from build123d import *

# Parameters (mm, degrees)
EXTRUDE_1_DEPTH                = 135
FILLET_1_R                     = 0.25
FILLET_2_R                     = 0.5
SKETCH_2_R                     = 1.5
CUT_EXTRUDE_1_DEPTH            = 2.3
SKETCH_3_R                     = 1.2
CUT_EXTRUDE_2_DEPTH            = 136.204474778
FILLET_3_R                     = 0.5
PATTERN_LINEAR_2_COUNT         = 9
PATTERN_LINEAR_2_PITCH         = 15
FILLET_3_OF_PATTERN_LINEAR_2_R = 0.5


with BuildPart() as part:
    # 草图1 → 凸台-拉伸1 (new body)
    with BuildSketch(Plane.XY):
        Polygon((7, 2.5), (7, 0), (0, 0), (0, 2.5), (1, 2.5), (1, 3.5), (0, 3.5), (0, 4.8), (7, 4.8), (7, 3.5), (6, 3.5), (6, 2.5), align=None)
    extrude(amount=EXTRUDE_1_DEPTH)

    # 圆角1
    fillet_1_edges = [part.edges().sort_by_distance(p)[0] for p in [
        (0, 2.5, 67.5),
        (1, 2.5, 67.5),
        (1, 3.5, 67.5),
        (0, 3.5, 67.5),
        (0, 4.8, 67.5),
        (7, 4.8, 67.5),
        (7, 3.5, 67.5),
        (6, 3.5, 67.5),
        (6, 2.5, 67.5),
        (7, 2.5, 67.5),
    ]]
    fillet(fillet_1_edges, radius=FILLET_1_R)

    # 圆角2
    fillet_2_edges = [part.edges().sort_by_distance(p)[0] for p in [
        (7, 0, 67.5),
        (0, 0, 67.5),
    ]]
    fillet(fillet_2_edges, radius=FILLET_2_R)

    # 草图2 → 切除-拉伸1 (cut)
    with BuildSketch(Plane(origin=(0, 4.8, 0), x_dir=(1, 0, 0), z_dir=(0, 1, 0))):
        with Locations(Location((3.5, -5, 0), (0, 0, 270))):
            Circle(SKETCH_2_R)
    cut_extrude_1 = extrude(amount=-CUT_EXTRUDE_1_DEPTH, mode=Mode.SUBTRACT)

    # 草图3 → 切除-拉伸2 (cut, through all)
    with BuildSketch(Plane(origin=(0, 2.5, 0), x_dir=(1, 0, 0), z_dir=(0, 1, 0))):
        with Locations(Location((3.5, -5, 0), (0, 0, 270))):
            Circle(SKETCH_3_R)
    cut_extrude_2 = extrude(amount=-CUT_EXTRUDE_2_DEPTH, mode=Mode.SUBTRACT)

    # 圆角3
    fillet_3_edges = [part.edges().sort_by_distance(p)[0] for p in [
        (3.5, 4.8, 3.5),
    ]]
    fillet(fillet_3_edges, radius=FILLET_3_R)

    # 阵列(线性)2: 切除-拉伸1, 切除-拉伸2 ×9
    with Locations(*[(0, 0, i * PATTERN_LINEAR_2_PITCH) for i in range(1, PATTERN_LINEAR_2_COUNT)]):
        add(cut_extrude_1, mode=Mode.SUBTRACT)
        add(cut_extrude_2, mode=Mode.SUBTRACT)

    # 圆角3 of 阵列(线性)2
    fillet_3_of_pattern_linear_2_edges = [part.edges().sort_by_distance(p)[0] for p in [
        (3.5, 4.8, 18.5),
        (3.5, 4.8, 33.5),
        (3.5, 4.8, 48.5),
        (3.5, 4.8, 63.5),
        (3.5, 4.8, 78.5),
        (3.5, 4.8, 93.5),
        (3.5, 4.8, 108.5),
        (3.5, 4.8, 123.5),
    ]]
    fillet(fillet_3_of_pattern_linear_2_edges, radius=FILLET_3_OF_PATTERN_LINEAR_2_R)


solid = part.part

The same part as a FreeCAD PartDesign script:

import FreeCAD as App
import Part
import Sketcher
from FreeCAD import Vector
Q = App.Units.Quantity


def edges_at(feature, points):
    """Names of the edges that pass closest to the given points."""
    edges = feature.Shape.Edges
    near = lambda p: min(range(len(edges)), key=lambda i: edges[i].distToShape(Part.Vertex(*p))[0])
    return sorted({f"Edge{near(p) + 1}" for p in points})


def add_polygon(sketch, points):
    """Adds a closed chain of lines whose ends are joined by coincident constraints."""
    first, n = sketch.GeometryCount, len(points)
    for a, b in zip(points, points[1:] + points[:1]):
        sketch.addGeometry(Part.LineSegment(App.Vector(*a, 0), App.Vector(*b, 0)), False)
    for i in range(n):
        sketch.addConstraint(Sketcher.Constraint("Coincident", first + i, 2, first + (i + 1) % n, 1))

doc = App.newDocument("Part")
body = doc.addObject("PartDesign::Body", "Body")

# Sketch on XY plane
sketch1 = doc.addObject("Sketcher::SketchObject", "Sketch")
body.addObject(sketch1)
sketch1.AttachmentSupport = (doc.XY_Plane, [""])
sketch1.MapMode = "FlatFace"
add_polygon(sketch1, [(7, 0), (7, 2.5), (6, 2.5), (6, 3.5), (7, 3.5), (7, 4.8), (0, 4.8), (0, 3.5), (1, 3.5), (1, 2.5), (0, 2.5), (0, 0)])  # lines 0-11
sketch1.addConstraint(Sketcher.Constraint("Vertical", 0))
sketch1.addConstraint(Sketcher.Constraint("Horizontal", 1))
sketch1.addConstraint(Sketcher.Constraint("Vertical", 2))
sketch1.addConstraint(Sketcher.Constraint("Horizontal", 3))
sketch1.addConstraint(Sketcher.Constraint("Vertical", 4))
sketch1.addConstraint(Sketcher.Constraint("Horizontal", 5))
sketch1.addConstraint(Sketcher.Constraint("Vertical", 6))
sketch1.addConstraint(Sketcher.Constraint("Horizontal", 7))
sketch1.addConstraint(Sketcher.Constraint("Vertical", 8))
sketch1.addConstraint(Sketcher.Constraint("Horizontal", 9))
sketch1.addConstraint(Sketcher.Constraint("Vertical", 10))
sketch1.addConstraint(Sketcher.Constraint("Horizontal", 11))
sketch1.addConstraint(Sketcher.Constraint("Coincident", 10, 2, -1, 1))
sketch1.addConstraint(Sketcher.Constraint("PointOnObject", 5, 2, -2))
sketch1.addConstraint(Sketcher.Constraint("Horizontal", 3, 2, 6, 2))
sketch1.addConstraint(Sketcher.Constraint("Horizontal", 1, 2, 8, 2))
sketch1.addConstraint(Sketcher.Constraint("Vertical", 0, 2, 3, 2))
sketch1.addConstraint(Sketcher.Constraint("Equal", 3, 7))
sketch1.addConstraint(Sketcher.Constraint("Equal", 9, 2))
sketch1.addConstraint(Sketcher.Constraint("DistanceX", 1, 2, 1, 1, Q("1 mm")))
sketch1.addConstraint(Sketcher.Constraint("DistanceX", 5, 2, 5, 1, Q("7 mm")))
sketch1.addConstraint(Sketcher.Constraint("DistanceY", 0, 1, 0, 2, Q("2.5 mm")))
sketch1.addConstraint(Sketcher.Constraint("DistanceY", 4, 1, 4, 2, Q("1.3 mm")))
pad1 = doc.addObject("PartDesign::Pad", "Pad")
body.addObject(pad1)
pad1.Profile = sketch1
pad1.Length = 135
doc.recompute()

fillet = doc.addObject("PartDesign::Fillet", "Fillet")
body.addObject(fillet)
fillet.Base = (pad1, edges_at(pad1, [
    (0, 2.5, 67.5),
    (1, 2.5, 67.5),
    (1, 3.5, 67.5),
    (0, 3.5, 67.5),
    (0, 4.8, 67.5),
    (7, 4.8, 67.5),
    (7, 3.5, 67.5),
    (6, 3.5, 67.5),
    (6, 2.5, 67.5),
    (7, 2.5, 67.5),
]))
fillet.Radius = 0.25
doc.recompute()

fillet2 = doc.addObject("PartDesign::Fillet", "Fillet001")
body.addObject(fillet2)
fillet2.Base = (fillet, edges_at(fillet, [(7, 0, 67.5), (0, 0, 67.5)]))
fillet2.Radius = 0.5

# Sketch on XZ plane
sketch2 = doc.addObject("Sketcher::SketchObject", "Sketch001")
body.addObject(sketch2)
sketch2.AttachmentSupport = (doc.XZ_Plane, [""])
sketch2.MapMode = "FlatFace"
sketch2.AttachmentOffset = App.Placement(Vector(0, 0, -4.8), App.Rotation())
sketch2.addGeometry(Part.Circle(Vector(3.5, 5, 0), Vector(0, 0, 1), 1.5), False)
sketch2.addConstraint(Sketcher.Constraint("Diameter", 0, Q("3 mm")))
sketch2.addConstraint(Sketcher.Constraint("DistanceY", -1, 1, 0, 3, Q("5 mm")))
sketch2.addConstraint(Sketcher.Constraint("DistanceX", -1, 1, 0, 3, Q("3.5 mm")))
pocket1 = doc.addObject("PartDesign::Pocket", "Pocket")
body.addObject(pocket1)
pocket1.Profile = sketch2
pocket1.Length = 2.3
pocket1.Reversed = True

# Sketch on XZ plane
sketch3 = doc.addObject("Sketcher::SketchObject", "Sketch002")
body.addObject(sketch3)
sketch3.AttachmentSupport = (doc.XZ_Plane, [""])
sketch3.MapMode = "FlatFace"
sketch3.AttachmentOffset = App.Placement(Vector(0, 0, -2.5), App.Rotation())
sketch3.addGeometry(Part.Circle(Vector(3.5, 5, 0), Vector(0, 0, 1), 1.2), False)
sketch3.addConstraint(Sketcher.Constraint("Diameter", 0, Q("2.4 mm")))
sketch3.addConstraint(Sketcher.Constraint("DistanceY", -1, 1, 0, 3, Q("5 mm")))
sketch3.addConstraint(Sketcher.Constraint("DistanceX", -1, 1, 0, 3, Q("3.5 mm")))
pocket2 = doc.addObject("PartDesign::Pocket", "Pocket001")
body.addObject(pocket2)
pocket2.Profile = sketch3
pocket2.Type = "ThroughAll"
pocket2.Reversed = True
doc.recompute()

fillet3 = doc.addObject("PartDesign::Fillet", "Fillet002")
body.addObject(fillet3)
fillet3.Base = (pocket2, edges_at(pocket2, [(3.5, 4.8, 3.5)]))
fillet3.Radius = 0.5
doc.recompute()

linearpattern = doc.addObject("PartDesign::LinearPattern", "LinearPattern")
body.addObject(linearpattern)
linearpattern.Originals = [pocket1, pocket2]
linearpattern.Direction = (doc.Z_Axis, [""])
linearpattern.Mode = "offset"
linearpattern.Offset = 15
linearpattern.Occurrences = 9
body.Tip = linearpattern
doc.recompute()

fillet4 = doc.addObject("PartDesign::Fillet", "Fillet003")
body.addObject(fillet4)
fillet4.Base = (linearpattern, edges_at(linearpattern, [
    (3.5, 4.8, 18.5),
    (3.5, 4.8, 33.5),
    (3.5, 4.8, 48.5),
    (3.5, 4.8, 63.5),
    (3.5, 4.8, 78.5),
    (3.5, 4.8, 93.5),
    (3.5, 4.8, 108.5),
    (3.5, 4.8, 123.5),
]))
fillet4.Radius = 0.5

doc.recompute()
